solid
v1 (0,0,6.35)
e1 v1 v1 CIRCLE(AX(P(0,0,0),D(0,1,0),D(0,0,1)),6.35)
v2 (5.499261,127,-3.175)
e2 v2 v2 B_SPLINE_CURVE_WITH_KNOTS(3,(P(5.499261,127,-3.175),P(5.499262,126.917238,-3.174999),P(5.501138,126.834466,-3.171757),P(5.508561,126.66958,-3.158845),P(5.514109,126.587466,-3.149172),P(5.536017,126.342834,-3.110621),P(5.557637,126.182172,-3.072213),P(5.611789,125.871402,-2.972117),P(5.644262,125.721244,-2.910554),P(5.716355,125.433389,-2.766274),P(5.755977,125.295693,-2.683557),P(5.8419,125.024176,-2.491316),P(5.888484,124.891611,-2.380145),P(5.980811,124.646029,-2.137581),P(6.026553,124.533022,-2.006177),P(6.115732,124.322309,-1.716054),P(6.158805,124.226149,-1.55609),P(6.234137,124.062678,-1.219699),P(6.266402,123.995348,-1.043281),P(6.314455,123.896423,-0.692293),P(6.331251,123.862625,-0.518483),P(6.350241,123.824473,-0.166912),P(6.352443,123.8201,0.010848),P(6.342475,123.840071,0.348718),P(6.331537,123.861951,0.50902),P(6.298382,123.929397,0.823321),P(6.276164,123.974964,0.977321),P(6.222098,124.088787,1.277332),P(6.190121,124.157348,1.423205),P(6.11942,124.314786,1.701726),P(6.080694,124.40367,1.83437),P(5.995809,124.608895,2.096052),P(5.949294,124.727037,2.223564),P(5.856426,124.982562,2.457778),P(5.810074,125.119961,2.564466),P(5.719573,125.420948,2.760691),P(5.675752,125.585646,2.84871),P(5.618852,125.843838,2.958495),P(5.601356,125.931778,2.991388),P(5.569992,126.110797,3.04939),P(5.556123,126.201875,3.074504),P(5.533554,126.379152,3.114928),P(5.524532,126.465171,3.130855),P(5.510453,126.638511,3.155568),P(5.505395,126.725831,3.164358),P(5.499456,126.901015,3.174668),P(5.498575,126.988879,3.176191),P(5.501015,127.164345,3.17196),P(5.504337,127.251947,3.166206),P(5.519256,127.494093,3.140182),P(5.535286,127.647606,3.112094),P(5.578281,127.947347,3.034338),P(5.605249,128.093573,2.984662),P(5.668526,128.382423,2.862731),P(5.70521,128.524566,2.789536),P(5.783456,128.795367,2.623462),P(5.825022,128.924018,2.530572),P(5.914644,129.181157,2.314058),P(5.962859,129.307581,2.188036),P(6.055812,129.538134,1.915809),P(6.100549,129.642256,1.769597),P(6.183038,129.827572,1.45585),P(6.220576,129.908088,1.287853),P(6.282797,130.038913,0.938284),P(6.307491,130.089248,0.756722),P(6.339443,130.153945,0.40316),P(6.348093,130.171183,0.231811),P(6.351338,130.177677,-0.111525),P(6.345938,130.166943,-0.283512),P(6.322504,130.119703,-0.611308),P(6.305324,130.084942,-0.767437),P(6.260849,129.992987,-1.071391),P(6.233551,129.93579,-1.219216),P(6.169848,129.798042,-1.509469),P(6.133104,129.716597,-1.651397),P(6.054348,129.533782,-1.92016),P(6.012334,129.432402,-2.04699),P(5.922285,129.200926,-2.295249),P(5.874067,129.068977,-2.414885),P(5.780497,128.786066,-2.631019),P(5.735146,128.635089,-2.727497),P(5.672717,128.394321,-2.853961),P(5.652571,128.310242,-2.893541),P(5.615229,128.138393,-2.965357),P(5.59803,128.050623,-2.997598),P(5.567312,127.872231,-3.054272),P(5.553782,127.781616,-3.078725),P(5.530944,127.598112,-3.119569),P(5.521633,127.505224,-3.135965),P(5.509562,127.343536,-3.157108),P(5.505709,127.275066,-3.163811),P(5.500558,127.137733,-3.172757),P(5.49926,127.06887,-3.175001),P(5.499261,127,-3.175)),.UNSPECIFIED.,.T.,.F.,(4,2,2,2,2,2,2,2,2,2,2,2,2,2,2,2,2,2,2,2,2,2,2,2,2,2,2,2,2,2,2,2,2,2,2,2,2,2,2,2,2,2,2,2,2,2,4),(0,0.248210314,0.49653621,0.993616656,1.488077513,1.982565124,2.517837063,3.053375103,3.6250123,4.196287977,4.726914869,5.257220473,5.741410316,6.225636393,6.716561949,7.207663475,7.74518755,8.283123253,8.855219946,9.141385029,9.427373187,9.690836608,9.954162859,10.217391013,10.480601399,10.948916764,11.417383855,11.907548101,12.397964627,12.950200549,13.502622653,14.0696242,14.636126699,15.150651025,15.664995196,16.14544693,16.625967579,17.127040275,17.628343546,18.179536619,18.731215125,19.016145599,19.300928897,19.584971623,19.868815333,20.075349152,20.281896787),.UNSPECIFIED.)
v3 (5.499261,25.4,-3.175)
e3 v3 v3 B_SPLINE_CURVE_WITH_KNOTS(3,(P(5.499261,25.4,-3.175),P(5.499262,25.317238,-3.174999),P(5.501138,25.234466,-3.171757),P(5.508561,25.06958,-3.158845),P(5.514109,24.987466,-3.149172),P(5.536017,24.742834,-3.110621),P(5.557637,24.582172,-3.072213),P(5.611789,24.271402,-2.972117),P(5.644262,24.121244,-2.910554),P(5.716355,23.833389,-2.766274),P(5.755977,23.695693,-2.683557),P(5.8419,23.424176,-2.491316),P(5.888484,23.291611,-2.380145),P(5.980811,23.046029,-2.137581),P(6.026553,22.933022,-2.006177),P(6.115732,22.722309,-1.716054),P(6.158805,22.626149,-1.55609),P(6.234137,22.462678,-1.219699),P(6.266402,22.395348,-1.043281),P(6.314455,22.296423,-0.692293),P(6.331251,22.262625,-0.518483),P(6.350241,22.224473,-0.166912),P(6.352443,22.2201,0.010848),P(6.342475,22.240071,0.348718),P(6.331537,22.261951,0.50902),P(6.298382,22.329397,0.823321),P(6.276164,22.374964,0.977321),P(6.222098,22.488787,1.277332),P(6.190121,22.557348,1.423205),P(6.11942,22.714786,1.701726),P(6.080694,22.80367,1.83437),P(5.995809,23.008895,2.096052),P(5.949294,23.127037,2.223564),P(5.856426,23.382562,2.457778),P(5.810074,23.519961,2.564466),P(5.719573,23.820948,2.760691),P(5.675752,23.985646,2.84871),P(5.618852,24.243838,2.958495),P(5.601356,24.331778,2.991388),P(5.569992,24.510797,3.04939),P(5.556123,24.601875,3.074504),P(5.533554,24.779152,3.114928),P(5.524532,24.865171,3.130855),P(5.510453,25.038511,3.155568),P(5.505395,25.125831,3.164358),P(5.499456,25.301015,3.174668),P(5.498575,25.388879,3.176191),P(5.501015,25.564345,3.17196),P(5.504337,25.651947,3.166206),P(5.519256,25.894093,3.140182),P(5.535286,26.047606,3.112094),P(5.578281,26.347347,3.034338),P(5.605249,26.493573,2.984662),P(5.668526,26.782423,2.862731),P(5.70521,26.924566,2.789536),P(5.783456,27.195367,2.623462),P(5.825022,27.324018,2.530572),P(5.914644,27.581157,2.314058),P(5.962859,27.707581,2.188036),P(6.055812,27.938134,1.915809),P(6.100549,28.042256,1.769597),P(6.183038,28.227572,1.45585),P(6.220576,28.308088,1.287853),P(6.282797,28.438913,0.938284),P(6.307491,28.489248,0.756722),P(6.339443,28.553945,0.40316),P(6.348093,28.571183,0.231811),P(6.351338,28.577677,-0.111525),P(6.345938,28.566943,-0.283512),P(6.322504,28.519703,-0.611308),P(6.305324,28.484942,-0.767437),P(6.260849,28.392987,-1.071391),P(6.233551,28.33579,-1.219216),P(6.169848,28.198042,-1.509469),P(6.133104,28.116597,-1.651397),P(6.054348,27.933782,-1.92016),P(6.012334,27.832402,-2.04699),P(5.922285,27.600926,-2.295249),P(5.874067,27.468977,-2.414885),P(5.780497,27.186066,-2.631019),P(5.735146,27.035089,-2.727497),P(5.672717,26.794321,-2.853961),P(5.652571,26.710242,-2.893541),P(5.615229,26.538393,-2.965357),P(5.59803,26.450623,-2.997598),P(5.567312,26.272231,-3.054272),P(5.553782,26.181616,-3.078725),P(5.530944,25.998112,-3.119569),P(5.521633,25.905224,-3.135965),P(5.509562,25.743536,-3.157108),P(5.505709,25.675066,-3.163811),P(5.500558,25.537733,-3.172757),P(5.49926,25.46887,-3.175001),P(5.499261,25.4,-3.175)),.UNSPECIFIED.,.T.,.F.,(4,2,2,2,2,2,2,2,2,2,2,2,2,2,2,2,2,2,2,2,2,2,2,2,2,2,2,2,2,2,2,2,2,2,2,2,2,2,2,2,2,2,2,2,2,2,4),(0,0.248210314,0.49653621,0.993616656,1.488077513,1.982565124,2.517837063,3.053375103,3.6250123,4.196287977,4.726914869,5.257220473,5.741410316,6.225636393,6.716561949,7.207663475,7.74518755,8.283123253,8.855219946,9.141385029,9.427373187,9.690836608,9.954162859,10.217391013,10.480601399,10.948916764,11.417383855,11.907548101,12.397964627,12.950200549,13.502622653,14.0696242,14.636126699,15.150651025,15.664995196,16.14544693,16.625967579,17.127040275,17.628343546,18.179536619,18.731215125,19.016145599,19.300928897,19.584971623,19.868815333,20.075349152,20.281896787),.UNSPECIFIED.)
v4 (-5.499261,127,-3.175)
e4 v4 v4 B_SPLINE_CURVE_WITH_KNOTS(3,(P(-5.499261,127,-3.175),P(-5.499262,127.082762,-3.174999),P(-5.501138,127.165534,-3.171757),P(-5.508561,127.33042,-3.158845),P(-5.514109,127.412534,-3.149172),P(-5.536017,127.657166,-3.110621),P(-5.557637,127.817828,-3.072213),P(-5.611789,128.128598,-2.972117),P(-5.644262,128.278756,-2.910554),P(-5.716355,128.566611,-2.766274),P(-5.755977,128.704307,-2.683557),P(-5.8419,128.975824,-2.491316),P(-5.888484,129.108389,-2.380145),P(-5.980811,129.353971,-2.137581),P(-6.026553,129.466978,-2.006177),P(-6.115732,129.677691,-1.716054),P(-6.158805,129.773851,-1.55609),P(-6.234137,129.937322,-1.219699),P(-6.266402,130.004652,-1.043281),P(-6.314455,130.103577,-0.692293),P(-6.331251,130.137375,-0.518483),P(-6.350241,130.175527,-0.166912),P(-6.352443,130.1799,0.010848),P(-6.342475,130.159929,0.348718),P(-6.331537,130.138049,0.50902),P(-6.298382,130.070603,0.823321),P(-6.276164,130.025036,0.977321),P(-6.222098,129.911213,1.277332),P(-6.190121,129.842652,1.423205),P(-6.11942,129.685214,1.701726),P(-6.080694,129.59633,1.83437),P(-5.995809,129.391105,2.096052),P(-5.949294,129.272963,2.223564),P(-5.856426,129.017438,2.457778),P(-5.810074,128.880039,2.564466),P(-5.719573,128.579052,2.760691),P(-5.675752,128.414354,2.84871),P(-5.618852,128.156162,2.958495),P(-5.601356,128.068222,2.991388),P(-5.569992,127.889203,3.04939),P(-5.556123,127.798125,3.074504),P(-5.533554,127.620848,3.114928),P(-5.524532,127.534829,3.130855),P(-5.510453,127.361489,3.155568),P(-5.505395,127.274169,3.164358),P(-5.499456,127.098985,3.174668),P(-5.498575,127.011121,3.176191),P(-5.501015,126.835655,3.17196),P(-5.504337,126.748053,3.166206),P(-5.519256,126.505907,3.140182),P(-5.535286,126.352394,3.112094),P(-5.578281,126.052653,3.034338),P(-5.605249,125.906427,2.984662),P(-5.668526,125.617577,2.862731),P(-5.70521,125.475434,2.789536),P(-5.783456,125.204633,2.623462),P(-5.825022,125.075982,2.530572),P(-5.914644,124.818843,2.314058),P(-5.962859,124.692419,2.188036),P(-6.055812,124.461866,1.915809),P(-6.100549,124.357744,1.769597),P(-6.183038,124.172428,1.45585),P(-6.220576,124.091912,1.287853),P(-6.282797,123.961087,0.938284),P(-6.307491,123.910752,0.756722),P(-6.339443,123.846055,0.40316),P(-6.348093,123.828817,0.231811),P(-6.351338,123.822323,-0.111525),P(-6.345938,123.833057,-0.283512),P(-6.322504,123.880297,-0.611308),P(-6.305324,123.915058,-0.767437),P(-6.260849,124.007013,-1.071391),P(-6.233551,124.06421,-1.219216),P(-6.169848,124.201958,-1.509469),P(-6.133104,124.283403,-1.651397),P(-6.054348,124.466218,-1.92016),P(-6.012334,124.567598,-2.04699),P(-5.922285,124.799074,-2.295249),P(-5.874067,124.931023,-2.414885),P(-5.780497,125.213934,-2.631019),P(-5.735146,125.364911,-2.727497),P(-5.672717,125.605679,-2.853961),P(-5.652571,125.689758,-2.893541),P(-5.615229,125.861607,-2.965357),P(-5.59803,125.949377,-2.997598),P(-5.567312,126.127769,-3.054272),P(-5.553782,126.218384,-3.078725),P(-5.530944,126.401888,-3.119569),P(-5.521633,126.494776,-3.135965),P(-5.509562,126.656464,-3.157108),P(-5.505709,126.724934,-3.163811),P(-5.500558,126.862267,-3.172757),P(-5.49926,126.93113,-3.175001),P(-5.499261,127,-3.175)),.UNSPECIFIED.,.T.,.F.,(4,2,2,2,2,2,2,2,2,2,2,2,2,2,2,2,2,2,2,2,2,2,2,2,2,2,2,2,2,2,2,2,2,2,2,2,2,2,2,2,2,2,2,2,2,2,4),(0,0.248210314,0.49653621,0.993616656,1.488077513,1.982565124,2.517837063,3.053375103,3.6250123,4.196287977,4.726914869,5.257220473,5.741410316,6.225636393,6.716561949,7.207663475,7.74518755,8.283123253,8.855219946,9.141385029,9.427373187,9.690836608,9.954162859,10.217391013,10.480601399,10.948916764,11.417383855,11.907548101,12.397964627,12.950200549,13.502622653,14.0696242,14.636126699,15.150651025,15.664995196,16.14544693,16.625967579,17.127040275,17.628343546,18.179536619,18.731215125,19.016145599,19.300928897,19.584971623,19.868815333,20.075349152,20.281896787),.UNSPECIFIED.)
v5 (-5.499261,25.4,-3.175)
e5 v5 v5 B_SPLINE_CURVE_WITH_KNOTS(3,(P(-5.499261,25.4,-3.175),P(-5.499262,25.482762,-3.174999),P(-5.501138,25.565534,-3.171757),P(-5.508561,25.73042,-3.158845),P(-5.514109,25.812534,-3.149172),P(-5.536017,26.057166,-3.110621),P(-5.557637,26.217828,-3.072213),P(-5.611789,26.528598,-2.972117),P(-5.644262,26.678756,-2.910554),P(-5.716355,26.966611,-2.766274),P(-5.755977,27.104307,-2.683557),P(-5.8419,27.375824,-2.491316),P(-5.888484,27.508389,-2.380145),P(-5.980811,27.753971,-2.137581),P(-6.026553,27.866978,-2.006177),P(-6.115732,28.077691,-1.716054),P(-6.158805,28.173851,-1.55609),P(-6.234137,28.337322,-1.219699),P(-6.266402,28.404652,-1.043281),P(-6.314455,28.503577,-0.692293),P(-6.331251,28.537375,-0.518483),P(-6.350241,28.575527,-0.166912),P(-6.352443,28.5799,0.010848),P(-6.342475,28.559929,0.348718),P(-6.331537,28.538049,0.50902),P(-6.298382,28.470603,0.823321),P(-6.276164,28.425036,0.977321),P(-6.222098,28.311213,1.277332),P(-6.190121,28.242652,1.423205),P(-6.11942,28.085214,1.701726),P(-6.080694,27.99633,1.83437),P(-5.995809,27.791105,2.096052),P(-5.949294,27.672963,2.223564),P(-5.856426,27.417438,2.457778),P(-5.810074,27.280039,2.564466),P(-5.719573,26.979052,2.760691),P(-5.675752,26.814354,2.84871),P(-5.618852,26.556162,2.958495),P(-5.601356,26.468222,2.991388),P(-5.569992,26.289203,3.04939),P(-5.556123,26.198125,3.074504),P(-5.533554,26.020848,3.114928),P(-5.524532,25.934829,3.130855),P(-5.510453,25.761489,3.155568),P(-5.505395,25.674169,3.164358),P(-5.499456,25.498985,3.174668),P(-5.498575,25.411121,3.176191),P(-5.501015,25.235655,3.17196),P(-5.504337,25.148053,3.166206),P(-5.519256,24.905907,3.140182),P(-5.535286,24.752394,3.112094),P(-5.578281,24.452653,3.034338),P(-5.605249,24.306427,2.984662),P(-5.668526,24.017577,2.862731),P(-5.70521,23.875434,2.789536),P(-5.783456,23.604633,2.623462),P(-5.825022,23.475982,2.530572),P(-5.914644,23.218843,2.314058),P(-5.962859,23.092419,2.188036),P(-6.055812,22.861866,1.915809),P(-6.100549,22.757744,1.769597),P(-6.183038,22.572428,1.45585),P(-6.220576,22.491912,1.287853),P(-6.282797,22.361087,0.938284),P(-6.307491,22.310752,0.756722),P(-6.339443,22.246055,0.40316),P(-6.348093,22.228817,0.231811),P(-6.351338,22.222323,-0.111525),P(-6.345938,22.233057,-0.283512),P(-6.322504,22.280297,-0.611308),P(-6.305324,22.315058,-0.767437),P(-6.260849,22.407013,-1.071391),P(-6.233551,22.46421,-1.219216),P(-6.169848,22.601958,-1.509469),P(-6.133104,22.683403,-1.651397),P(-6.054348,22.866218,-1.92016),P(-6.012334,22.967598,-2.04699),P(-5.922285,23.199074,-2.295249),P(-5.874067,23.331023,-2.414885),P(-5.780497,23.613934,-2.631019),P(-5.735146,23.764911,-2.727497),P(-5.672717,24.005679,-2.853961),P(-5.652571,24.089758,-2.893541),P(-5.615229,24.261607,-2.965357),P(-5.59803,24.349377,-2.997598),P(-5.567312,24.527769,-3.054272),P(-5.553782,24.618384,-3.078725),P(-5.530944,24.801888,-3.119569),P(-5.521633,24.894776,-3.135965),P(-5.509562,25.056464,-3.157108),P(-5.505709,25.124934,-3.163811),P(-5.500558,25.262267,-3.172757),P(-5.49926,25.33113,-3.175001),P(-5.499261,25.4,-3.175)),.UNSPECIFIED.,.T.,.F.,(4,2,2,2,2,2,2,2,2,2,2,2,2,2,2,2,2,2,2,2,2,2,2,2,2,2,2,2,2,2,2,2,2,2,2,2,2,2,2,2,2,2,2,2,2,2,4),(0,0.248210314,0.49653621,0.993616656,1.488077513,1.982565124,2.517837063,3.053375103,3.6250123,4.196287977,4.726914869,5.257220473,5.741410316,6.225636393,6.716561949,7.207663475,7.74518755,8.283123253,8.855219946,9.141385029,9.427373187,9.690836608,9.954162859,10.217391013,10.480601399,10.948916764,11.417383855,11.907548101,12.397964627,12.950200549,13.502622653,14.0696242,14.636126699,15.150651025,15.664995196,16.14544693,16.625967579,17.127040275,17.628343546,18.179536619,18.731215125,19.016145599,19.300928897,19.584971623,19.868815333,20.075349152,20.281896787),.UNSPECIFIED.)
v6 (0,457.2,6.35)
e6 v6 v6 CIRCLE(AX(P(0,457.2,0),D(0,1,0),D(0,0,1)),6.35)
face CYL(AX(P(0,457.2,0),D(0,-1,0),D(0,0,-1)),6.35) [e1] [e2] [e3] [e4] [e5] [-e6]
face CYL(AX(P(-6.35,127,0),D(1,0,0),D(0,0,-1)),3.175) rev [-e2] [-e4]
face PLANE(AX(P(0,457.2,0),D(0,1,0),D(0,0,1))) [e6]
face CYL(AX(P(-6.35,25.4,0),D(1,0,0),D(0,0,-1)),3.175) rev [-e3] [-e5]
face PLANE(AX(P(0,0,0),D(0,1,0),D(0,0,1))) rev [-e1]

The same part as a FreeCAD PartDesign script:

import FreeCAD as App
import Part
import Sketcher
from FreeCAD import Vector
Q = App.Units.Quantity

doc = App.newDocument("Part")
body = doc.addObject("PartDesign::Body", "Body")

sketch1 = body.newObject("Sketcher::SketchObject", "Sketch")
sketch1.AttachmentSupport = (doc.getObject("XZ_Plane"), [""])
sketch1.MapMode = "FlatFace"
sketch1.addGeometry(Part.Circle(Vector(0, 0, 0), Vector(0, 0, 1), 6), False)
sketch1.addConstraint([
    Sketcher.Constraint("Coincident", 0, 3, -1, 1),
    Sketcher.Constraint("Diameter", 0, Q("0.5 in")),
])
pad1 = body.newObject("PartDesign::Pad", "Pad")
pad1.Profile = sketch1
pad1.Length = Q("18 in")
pad1.Reversed = True

sketch2 = body.newObject("Sketcher::SketchObject", "Sketch001")
sketch2.AttachmentSupport = (doc.getObject("YZ_Plane"), [""])
sketch2.MapMode = "FlatFace"
sketch2.addGeometry([
    Part.Circle(Vector(25.4, 0, 0), Vector(0, 0, 1), 3.2),
    Part.Circle(Vector(127, 0, 0), Vector(0, 0, 1), 3.2),
], False)
sketch2.addConstraint([
    Sketcher.Constraint("Equal", 0, 1),
    Sketcher.Constraint("PointOnObject", 0, 3, -1),
    Sketcher.Constraint("PointOnObject", 1, 3, -1),
    Sketcher.Constraint("Diameter", 0, Q("0.25 in")),
    Sketcher.Constraint("DistanceX", -1, 1, 0, 3, Q("1 in")),
    Sketcher.Constraint("DistanceX", -1, 1, 1, 3, Q("5 in")),
])
pocket1 = body.newObject("PartDesign::Pocket", "Pocket")
pocket1.Profile = sketch2
pocket1.Type = "ThroughAll"
pocket1.Midplane = True

doc.recompute()
